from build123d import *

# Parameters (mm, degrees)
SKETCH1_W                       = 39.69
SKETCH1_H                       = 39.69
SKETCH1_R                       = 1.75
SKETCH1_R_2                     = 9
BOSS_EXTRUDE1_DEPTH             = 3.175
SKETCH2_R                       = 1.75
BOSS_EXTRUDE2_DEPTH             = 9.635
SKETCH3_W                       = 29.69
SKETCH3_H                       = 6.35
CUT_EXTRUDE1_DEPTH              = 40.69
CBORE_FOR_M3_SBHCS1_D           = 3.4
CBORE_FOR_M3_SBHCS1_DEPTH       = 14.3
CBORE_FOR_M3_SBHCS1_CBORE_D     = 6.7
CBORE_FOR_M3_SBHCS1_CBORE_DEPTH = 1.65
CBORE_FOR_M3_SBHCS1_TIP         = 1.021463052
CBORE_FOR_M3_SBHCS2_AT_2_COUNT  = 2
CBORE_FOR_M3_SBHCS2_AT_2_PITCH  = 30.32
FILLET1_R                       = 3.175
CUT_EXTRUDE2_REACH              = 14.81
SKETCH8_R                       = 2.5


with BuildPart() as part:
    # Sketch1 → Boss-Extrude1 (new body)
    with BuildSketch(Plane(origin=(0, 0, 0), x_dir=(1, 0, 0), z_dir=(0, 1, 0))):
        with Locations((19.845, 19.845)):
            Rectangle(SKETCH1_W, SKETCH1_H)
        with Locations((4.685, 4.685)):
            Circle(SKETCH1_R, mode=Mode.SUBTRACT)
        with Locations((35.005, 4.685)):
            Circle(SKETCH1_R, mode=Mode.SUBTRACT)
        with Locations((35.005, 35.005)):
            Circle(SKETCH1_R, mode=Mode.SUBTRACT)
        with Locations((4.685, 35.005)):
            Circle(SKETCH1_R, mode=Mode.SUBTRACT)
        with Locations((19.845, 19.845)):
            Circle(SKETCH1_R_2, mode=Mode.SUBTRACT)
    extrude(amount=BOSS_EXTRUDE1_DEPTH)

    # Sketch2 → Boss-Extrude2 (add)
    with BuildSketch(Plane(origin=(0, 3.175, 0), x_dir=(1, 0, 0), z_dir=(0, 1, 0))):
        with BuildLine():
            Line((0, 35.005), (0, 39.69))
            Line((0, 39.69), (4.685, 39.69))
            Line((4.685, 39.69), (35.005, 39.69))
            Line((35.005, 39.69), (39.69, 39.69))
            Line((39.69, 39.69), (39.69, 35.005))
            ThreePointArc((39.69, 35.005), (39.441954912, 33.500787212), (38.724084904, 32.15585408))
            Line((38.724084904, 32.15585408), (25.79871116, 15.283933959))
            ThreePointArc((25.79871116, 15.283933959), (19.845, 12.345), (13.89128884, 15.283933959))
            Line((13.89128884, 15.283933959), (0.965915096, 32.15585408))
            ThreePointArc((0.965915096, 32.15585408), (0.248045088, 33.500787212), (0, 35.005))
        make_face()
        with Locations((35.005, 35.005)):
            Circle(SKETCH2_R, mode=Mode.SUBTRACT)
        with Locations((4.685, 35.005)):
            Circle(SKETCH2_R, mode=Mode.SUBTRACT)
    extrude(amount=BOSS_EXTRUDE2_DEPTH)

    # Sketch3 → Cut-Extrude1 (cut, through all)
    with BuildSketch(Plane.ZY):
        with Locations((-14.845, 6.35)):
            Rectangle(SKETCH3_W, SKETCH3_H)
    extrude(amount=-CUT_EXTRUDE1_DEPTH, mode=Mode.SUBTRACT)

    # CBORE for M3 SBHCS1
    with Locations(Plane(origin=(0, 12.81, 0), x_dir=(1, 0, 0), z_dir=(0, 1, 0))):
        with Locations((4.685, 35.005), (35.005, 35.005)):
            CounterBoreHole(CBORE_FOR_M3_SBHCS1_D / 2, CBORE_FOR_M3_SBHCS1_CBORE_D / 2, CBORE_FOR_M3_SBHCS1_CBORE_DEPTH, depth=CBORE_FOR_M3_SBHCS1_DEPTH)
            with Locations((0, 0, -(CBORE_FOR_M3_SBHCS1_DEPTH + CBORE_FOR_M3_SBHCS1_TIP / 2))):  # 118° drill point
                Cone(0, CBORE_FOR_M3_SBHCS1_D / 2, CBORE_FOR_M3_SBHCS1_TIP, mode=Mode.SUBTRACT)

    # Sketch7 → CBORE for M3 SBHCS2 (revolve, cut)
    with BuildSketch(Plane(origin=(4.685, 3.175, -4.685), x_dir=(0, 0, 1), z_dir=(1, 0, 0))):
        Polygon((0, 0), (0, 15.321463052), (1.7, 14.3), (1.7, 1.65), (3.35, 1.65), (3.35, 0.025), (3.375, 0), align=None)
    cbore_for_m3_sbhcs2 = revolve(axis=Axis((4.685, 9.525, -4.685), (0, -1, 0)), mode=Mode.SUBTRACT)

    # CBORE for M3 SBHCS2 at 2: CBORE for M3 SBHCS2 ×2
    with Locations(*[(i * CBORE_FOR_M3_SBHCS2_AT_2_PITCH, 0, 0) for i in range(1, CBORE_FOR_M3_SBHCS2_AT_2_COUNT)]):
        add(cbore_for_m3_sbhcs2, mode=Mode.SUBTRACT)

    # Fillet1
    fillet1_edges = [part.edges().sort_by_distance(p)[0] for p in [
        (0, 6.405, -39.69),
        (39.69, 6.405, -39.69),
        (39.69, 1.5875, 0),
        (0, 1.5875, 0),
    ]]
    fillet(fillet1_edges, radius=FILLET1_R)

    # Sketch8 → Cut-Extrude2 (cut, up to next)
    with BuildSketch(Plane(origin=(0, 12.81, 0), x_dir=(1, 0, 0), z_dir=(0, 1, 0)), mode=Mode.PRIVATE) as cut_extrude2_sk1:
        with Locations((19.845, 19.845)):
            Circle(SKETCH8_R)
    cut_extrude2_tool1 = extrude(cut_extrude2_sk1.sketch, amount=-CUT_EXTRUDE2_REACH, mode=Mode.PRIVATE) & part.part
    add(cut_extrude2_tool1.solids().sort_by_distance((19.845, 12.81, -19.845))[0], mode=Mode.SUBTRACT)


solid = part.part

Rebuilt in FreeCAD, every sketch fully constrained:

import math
import FreeCAD as App
import Part
import Sketcher

V = App.Vector
Q = App.Units.Quantity


def edges_at(feature, points):
    """Names of the edges that pass closest to the given points."""
    edges = feature.Shape.Edges
    near = lambda p: min(range(len(edges)), key=lambda i: edges[i].distToShape(Part.Vertex(*p))[0])
    return sorted({f"Edge{near(p) + 1}" for p in points})

doc = App.newDocument("Part")
body = doc.addObject("PartDesign::Body", "Body")

# Sketch on XZ plane
sketch1 = body.newObject("Sketcher::SketchObject", "Sketch")
sketch1.AttachmentSupport = (doc.getObject("XZ_Plane"), [""])
sketch1.MapMode = "FlatFace"
sketch1.addGeometry([
    Part.LineSegment(V(0, -39.7, 0), V(0, 0, 0)),  # 0
    Part.LineSegment(V(0, 0, 0), V(39.7, 0, 0)),  # 1
    Part.LineSegment(V(39.7, 0, 0), V(39.7, -39.7, 0)),  # 2
    Part.LineSegment(V(39.7, -39.7, 0), V(0, -39.7, 0)),  # 3
    Part.Circle(V(4.7, -4.7, 0), V(0, 0, 1), 1.8),  # 4
    Part.Circle(V(19.8, -19.8, 0), V(0, 0, 1), 9),  # 5
    Part.Circle(V(35, -4.7, 0), V(0, 0, 1), 1.8),  # 6
    Part.Circle(V(4.7, -35, 0), V(0, 0, 1), 1.8),  # 7
    Part.Circle(V(35, -35, 0), V(0, 0, 1), 1.8),  # 8
], False)
sketch1.addConstraint([
    Sketcher.Constraint("Coincident", 0, 2, 1, 1),
    Sketcher.Constraint("Coincident", 1, 2, 2, 1),
    Sketcher.Constraint("Coincident", 2, 2, 3, 1),
    Sketcher.Constraint("Coincident", 3, 2, 0, 1),
    Sketcher.Constraint("Vertical", 0),
    Sketcher.Constraint("Horizontal", 1),
    Sketcher.Constraint("Vertical", 2),
    Sketcher.Constraint("Horizontal", 3),
    Sketcher.Constraint("Coincident", 0, 2, -1, 1),
    Sketcher.Constraint("Equal", 4, 6),
    Sketcher.Constraint("Equal", 6, 7),
    Sketcher.Constraint("Equal", 7, 8),
    Sketcher.Constraint("Horizontal", 4, 3, 6, 3),
    Sketcher.Constraint("Horizontal", 7, 3, 8, 3),
    Sketcher.Constraint("Vertical", 4, 3, 7, 3),
    Sketcher.Constraint("Vertical", 6, 3, 8, 3),
    Sketcher.Constraint("Equal", 3, 0),
    Sketcher.Constraint("Diameter", 5, 18.0),
    Sketcher.Constraint("Diameter", 4, 3.5),
    Sketcher.Constraint("DistanceX", 1, 1, 1, 2, 39.69),
    Sketcher.Constraint("DistanceX", 4, 3, 5, 3, 15.16),
    Sketcher.Constraint("DistanceY", 5, 3, 4, 3, 15.16),
    Sketcher.Constraint("DistanceX", 5, 3, 6, 3, 15.16),
    Sketcher.Constraint("DistanceY", 7, 3, 5, 3, 15.16),
    Sketcher.Constraint("DistanceX", -1, 1, 4, 3, 4.685),
    Sketcher.Constraint("DistanceY", 4, 3, -1, 1, 4.685),
])
pad1 = body.newObject("PartDesign::Pad", "Pad")
pad1.Profile = sketch1
pad1.Length = 3.175
pad1.Reversed = True

# Sketch on XZ plane
sketch2 = body.newObject("Sketcher::SketchObject", "Sketch001")
sketch2.AttachmentSupport = (doc.getObject("XZ_Plane"), [""])
sketch2.MapMode = "FlatFace"
sketch2.AttachmentOffset = App.Placement(V(0, 0, -3.175), App.Rotation())
sketch2.addGeometry([
    Part.LineSegment(V(0, -39.7, 0), V(0, -35, 0)),  # 0
    Part.ArcOfCircle(Part.Circle(V(4.7, -35, 0), V(0, 0, 1), 4.7), math.radians(143), math.radians(180)),  # 1
    Part.LineSegment(V(1, -32.2, 0), V(13.9, -15.3, 0)),  # 2
    Part.ArcOfCircle(Part.Circle(V(19.8, -19.8, 0), V(0, 0, 1), 7.5), math.radians(37), math.radians(143)),  # 3
    Part.LineSegment(V(25.8, -15.3, 0), V(38.7, -32.2, 0)),  # 4
    Part.ArcOfCircle(Part.Circle(V(35, -35, 0), V(0, 0, 1), 4.7), math.radians(0), math.radians(37)),  # 5
    Part.LineSegment(V(39.7, -35, 0), V(39.7, -39.7, 0)),  # 6
    Part.LineSegment(V(39.7, -39.7, 0), V(0, -39.7, 0)),  # 7
    Part.Circle(V(35, -35, 0), V(0, 0, 1), 1.8),  # 8
    Part.Circle(V(4.7, -35, 0), V(0, 0, 1), 1.8),  # 9
], False)
sketch2.addConstraint([
    Sketcher.Constraint("Tangent", 0, 2, 1, 2),
    Sketcher.Constraint("Tangent", 1, 1, 2, 1),
    Sketcher.Constraint("Tangent", 2, 2, 3, 2),
    Sketcher.Constraint("Tangent", 3, 1, 4, 1),
    Sketcher.Constraint("Tangent", 4, 2, 5, 2),
    Sketcher.Constraint("Tangent", 5, 1, 6, 1),
    Sketcher.Constraint("Coincident", 6, 2, 7, 1),
    Sketcher.Constraint("Coincident", 7, 2, 0, 1),
    Sketcher.Constraint("Vertical", 0),
    Sketcher.Constraint("Vertical", 6),
    Sketcher.Constraint("Horizontal", 7),
    Sketcher.Constraint("Coincident", 8, 3, 5, 3),
    Sketcher.Constraint("Coincident", 9, 3, 1, 3),
    Sketcher.Constraint("Equal", 1, 5),
    Sketcher.Constraint("Equal", 8, 9),
    Sketcher.Constraint("PointOnObject", 0, 2, -2),
    Sketcher.Constraint("Horizontal", 1, 3, 5, 3),
    Sketcher.Constraint("Horizontal", 2, 2, 3, 1),
    Sketcher.Constraint("Diameter", 8, 3.5),
    Sketcher.Constraint("Radius", 3, 7.5),
    Sketcher.Constraint("Radius", 1, 4.685),
    Sketcher.Constraint("DistanceX", 7, 2, 7, 1, 39.69),
    Sketcher.Constraint("DistanceY", 0, 1, 0, 2, 4.685),
    Sketcher.Constraint("DistanceY", 6, 2, -1, 1, 39.69),
    Sketcher.Constraint("DistanceY", 1, 3, 3, 3, 15.16),
])
pad2 = body.newObject("PartDesign::Pad", "Pad001")
pad2.Profile = sketch2
pad2.Length = 9.635
pad2.Reversed = True

# Sketch on YZ plane
sketch3 = body.newObject("Sketcher::SketchObject", "Sketch002")
sketch3.AttachmentSupport = (doc.getObject("YZ_Plane"), [""])
sketch3.MapMode = "FlatFace"
sketch3.addGeometry([
    Part.LineSegment(V(10, -30, 0), V(3, -30, 0)),
    Part.LineSegment(V(3, -30, 0), V(3, 0, 0)),
    Part.LineSegment(V(3, 0, 0), V(10, 0, 0)),
    Part.LineSegment(V(10, 0, 0), V(10, -30, 0)),
], False)
sketch3.addConstraint([
    Sketcher.Constraint("Coincident", 0, 2, 1, 1),
    Sketcher.Constraint("Coincident", 1, 2, 2, 1),
    Sketcher.Constraint("Coincident", 2, 2, 3, 1),
    Sketcher.Constraint("Coincident", 3, 2, 0, 1),
    Sketcher.Constraint("Horizontal", 0),
    Sketcher.Constraint("Vertical", 1),
    Sketcher.Constraint("Horizontal", 2),
    Sketcher.Constraint("Vertical", 3),
    Sketcher.Constraint("PointOnObject", 1, 2, -1),
    Sketcher.Constraint("DistanceX", 0, 2, 0, 1, 6.35),
    Sketcher.Constraint("DistanceY", 1, 1, 1, 2, 29.69),
    Sketcher.Constraint("DistanceX", -1, 1, 0, 2, 3.175),
])
pocket1 = body.newObject("PartDesign::Pocket", "Pocket")
pocket1.Profile = sketch3
pocket1.Type = "ThroughAll"
pocket1.Reversed = True

# Sketch on XZ plane
sketch4 = body.newObject("Sketcher::SketchObject", "Sketch003")
sketch4.AttachmentSupport = (doc.getObject("XZ_Plane"), [""])
sketch4.MapMode = "FlatFace"
sketch4.AttachmentOffset = App.Placement(V(0, 0, -12.81), App.Rotation())
sketch4.addGeometry([
    Part.Circle(V(4.7, -35, 0), V(0, 0, 1), 1.7),
    Part.Circle(V(35, -35, 0), V(0, 0, 1), 1.7),
], False)
sketch4.addConstraint([
    Sketcher.Constraint("Equal", 0, 1),
    Sketcher.Constraint("Horizontal", 0, 3, 1, 3),
    Sketcher.Constraint("Diameter", 0, 3.4),
    Sketcher.Constraint("DistanceX", 0, 3, 1, 3, 30.32),
    Sketcher.Constraint("DistanceX", -1, 1, 0, 3, 4.685),
    Sketcher.Constraint("DistanceY", 0, 3, -1, 1, 35.005),
])
doc.recompute()
hole = body.newObject("PartDesign::Hole", "Hole")
hole.Profile = sketch4
hole.ThreadType = "None"
hole.Diameter = 3.4
hole.DepthType = "Dimension"
hole.Depth = 14.3
hole.DrillPoint = "Angled"
hole.DrillPointAngle = 118
hole.HoleCutType = "Counterbore"
hole.HoleCutDiameter = 6.7
hole.HoleCutDepth = 1.65
hole.Reversed = True

# Sketch on YZ plane
sketch5 = body.newObject("Sketcher::SketchObject", "Sketch004")
sketch5.AttachmentSupport = (doc.getObject("YZ_Plane"), [""])
sketch5.MapMode = "FlatFace"
sketch5.AttachmentOffset = App.Placement(V(0, 0, 4.685), App.Rotation())
sketch5.addGeometry([
    Part.LineSegment(V(-12.146, -4.685, 0), V(3.175, -4.685, 0)),  # 0
    Part.LineSegment(V(3.175, -4.685, 0), V(3.175, -1.31, 0)),  # 1
    Part.LineSegment(V(3.175, -1.31, 0), V(3.15, -1.335, 0)),  # 2
    Part.LineSegment(V(3.15, -1.335, 0), V(1.525, -1.335, 0)),  # 3
    Part.LineSegment(V(1.525, -1.335, 0), V(1.525, -2.985, 0)),  # 4
    Part.LineSegment(V(1.525, -2.985, 0), V(-11.125, -2.985, 0)),  # 5
    Part.LineSegment(V(-11.125, -2.985, 0), V(-12.146, -4.685, 0)),  # 6
], False)
sketch5.addGeometry(Part.LineSegment(V(3.175, -4.685, 0), V(-12.146, -4.685, 0)), True)  # axis
sketch5.addConstraint([
    Sketcher.Constraint("Coincident", 0, 2, 1, 1),
    Sketcher.Constraint("Coincident", 1, 2, 2, 1),
    Sketcher.Constraint("Coincident", 2, 2, 3, 1),
    Sketcher.Constraint("Coincident", 3, 2, 4, 1),
    Sketcher.Constraint("Coincident", 4, 2, 5, 1),
    Sketcher.Constraint("Coincident", 5, 2, 6, 1),
    Sketcher.Constraint("Coincident", 6, 2, 0, 1),
    Sketcher.Constraint("Horizontal", 0),
    Sketcher.Constraint("Vertical", 1),
    Sketcher.Constraint("Horizontal", 3),
    Sketcher.Constraint("Vertical", 4),
    Sketcher.Constraint("Horizontal", 5),
    Sketcher.Constraint("Horizontal", 7),
    Sketcher.Constraint("Coincident", 7, 1, 0, 2),
    Sketcher.Constraint("Equal", 0, 7),
    Sketcher.Constraint("Angle", 2, Q("-135 deg")),
    Sketcher.Constraint("Angle", 6, Q("-121 deg")),
    Sketcher.Constraint("DistanceX", 5, 2, 5, 1, 12.65),
    Sketcher.Constraint("DistanceY", 4, 2, 4, 1, 1.65),
    Sketcher.Constraint("DistanceY", 0, 2, 4, 2, 1.7),
    Sketcher.Constraint("DistanceX", 5, 2, 1, 2, 14.3),
    Sketcher.Constraint("DistanceX", 3, 2, 3, 1, 1.625),
    Sketcher.Constraint("DistanceY", 1, 2, -1, 1, 1.31),
    Sketcher.Constraint("DistanceX", -1, 1, 2, 2, 3.15),
])
groove = body.newObject("PartDesign::Groove", "Groove")
groove.Profile = sketch5
groove.ReferenceAxis = (sketch5, ["Axis0"])
groove.Angle = 360
doc.recompute()

linearpattern = body.newObject("PartDesign::LinearPattern", "LinearPattern")
linearpattern.Originals = [groove]
linearpattern.Direction = (doc.getObject("X_Axis"), [""])
linearpattern.Mode = "offset"
linearpattern.Offset = 30.32
linearpattern.Occurrences = 2
body.Tip = linearpattern
doc.recompute()

fillet = body.newObject("PartDesign::Fillet", "Fillet")
fillet.Base = (linearpattern, edges_at(linearpattern, [
    (0, 6.405, -39.69),
    (39.69, 6.405, -39.69),
    (39.69, 1.587, 0),
    (0, 1.587, 0),
]))
fillet.Radius = 3.175

# Sketch on XZ plane
sketch6 = body.newObject("Sketcher::SketchObject", "Sketch005")
sketch6.AttachmentSupport = (doc.getObject("XZ_Plane"), [""])
sketch6.MapMode = "FlatFace"
sketch6.AttachmentOffset = App.Placement(V(0, 0, -12.81), App.Rotation())
sketch6.addGeometry(Part.Circle(V(19.8, -19.8, 0), V(0, 0, 1), 2.5), False)
sketch6.addConstraint([
    Sketcher.Constraint("Diameter", 0, 5.0),
    Sketcher.Constraint("DistanceX", -1, 1, 0, 3, 19.845),
    Sketcher.Constraint("DistanceY", 0, 3, -1, 1, 19.845),
])
pocket2 = body.newObject("PartDesign::Pocket", "Pocket001")
pocket2.Profile = sketch6
pocket2.Type = "UpToFirst"
pocket2.Reversed = True

doc.recompute()
